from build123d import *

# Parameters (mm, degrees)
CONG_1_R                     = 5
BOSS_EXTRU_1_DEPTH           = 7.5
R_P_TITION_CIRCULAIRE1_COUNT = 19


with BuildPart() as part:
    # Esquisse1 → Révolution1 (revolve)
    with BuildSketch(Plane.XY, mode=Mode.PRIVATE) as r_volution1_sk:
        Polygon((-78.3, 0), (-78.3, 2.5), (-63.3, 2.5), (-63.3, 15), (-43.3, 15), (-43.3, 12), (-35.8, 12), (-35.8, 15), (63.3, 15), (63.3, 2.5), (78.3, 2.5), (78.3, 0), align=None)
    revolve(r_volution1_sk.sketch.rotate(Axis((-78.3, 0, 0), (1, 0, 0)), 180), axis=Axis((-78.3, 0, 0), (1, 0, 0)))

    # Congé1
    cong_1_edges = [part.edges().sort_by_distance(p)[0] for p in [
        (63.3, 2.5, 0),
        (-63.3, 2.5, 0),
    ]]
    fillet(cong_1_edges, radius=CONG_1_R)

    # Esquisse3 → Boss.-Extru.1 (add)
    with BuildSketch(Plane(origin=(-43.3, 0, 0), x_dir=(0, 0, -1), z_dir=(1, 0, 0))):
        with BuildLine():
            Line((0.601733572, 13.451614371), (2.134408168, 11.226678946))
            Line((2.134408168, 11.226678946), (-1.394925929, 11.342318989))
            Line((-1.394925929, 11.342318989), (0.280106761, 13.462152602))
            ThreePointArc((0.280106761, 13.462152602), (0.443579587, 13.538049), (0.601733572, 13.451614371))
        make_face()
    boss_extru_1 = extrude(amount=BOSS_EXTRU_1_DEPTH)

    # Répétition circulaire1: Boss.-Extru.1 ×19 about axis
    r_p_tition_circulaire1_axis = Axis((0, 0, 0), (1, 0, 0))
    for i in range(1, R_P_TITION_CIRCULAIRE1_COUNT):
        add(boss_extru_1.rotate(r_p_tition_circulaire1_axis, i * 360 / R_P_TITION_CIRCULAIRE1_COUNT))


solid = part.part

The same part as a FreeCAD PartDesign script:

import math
import FreeCAD as App
import Part
import Sketcher

V = App.Vector
Q = App.Units.Quantity


def edges_at(feature, points):
    """Names of the edges that pass closest to the given points."""
    edges = feature.Shape.Edges
    near = lambda p: min(range(len(edges)), key=lambda i: edges[i].distToShape(Part.Vertex(*p))[0])
    return sorted({f"Edge{near(p) + 1}" for p in points})

doc = App.newDocument("Part")
body = doc.addObject("PartDesign::Body", "Body")

sketch1 = doc.addObject("Sketcher::SketchObject", "Sketch")
body.addObject(sketch1)
sketch1.AttachmentSupport = (doc.XY_Plane, [""])
sketch1.MapMode = "FlatFace"
sketch1.addGeometry([
    Part.LineSegment(V(-78.3, 2.5, 0), V(-78.3, 0, 0)),
    Part.LineSegment(V(-78.3, 0, 0), V(78.3, 0, 0)),
    Part.LineSegment(V(78.3, 0, 0), V(78.3, 2.5, 0)),
    Part.LineSegment(V(78.3, 2.5, 0), V(63.3, 2.5, 0)),
    Part.LineSegment(V(63.3, 2.5, 0), V(63.3, 15, 0)),
    Part.LineSegment(V(63.3, 15, 0), V(-35.8, 15, 0)),
    Part.LineSegment(V(-35.8, 15, 0), V(-35.8, 12, 0)),
    Part.LineSegment(V(-35.8, 12, 0), V(-43.3, 12, 0)),
    Part.LineSegment(V(-43.3, 12, 0), V(-43.3, 15, 0)),
    Part.LineSegment(V(-43.3, 15, 0), V(-63.3, 15, 0)),
    Part.LineSegment(V(-63.3, 15, 0), V(-63.3, 2.5, 0)),
    Part.LineSegment(V(-63.3, 2.5, 0), V(-78.3, 2.5, 0)),
], False)
sketch1.addConstraint([
    Sketcher.Constraint("Coincident", 0, 2, 1, 1),
    Sketcher.Constraint("Coincident", 1, 2, 2, 1),
    Sketcher.Constraint("Coincident", 2, 2, 3, 1),
    Sketcher.Constraint("Coincident", 3, 2, 4, 1),
    Sketcher.Constraint("Coincident", 4, 2, 5, 1),
    Sketcher.Constraint("Coincident", 5, 2, 6, 1),
    Sketcher.Constraint("Coincident", 6, 2, 7, 1),
    Sketcher.Constraint("Coincident", 7, 2, 8, 1),
    Sketcher.Constraint("Coincident", 8, 2, 9, 1),
    Sketcher.Constraint("Coincident", 9, 2, 10, 1),
    Sketcher.Constraint("Coincident", 10, 2, 11, 1),
    Sketcher.Constraint("Coincident", 11, 2, 0, 1),
    Sketcher.Constraint("Vertical", 0),
    Sketcher.Constraint("Horizontal", 1),
    Sketcher.Constraint("Vertical", 2),
    Sketcher.Constraint("Horizontal", 3),
    Sketcher.Constraint("Vertical", 4),
    Sketcher.Constraint("Horizontal", 5),
    Sketcher.Constraint("Vertical", 6),
    Sketcher.Constraint("Horizontal", 7),
    Sketcher.Constraint("Vertical", 8),
    Sketcher.Constraint("Horizontal", 9),
    Sketcher.Constraint("Vertical", 10),
    Sketcher.Constraint("Horizontal", 11),
    Sketcher.Constraint("Symmetric", 0, 2, 1, 2, -1, 1),
    Sketcher.Constraint("Symmetric", 4, 2, 9, 2, -2),
    Sketcher.Constraint("Horizontal", 3, 2, 10, 2),
    Sketcher.Constraint("DistanceX", 3, 2, 3, 1, Q("15 mm")),
    Sketcher.Constraint("DistanceX", 9, 2, 9, 1, Q("20 mm")),
    Sketcher.Constraint("DistanceY", 6, 2, 6, 1, Q("3 mm")),
    Sketcher.Constraint("DistanceX", 1, 1, 1, 2, Q("156.6 mm")),
    Sketcher.Constraint("DistanceX", 5, 2, 5, 1, Q("99.1 mm")),
    Sketcher.Constraint("DistanceY", 0, 2, 0, 1, Q("2.5 mm")),
    Sketcher.Constraint("DistanceY", 4, 1, 4, 2, Q("12.5 mm")),
])
revolution = doc.addObject("PartDesign::Revolution", "Revolution")
body.addObject(revolution)
revolution.Profile = sketch1
revolution.ReferenceAxis = (sketch1, ["H_Axis"])
revolution.Angle = 360
doc.recompute()

fillet = doc.addObject("PartDesign::Fillet", "Fillet")
body.addObject(fillet)
fillet.Base = (revolution, edges_at(revolution, [(63.3, 2.5, 0), (-63.3, 2.5, 0)]))
fillet.Radius = 5

sketch2 = doc.addObject("Sketcher::SketchObject", "Sketch001")
body.addObject(sketch2)
sketch2.AttachmentSupport = (doc.YZ_Plane, [""])
sketch2.MapMode = "FlatFace"
sketch2.AttachmentOffset = App.Placement(V(0, 0, -43.3), App.Rotation())
sketch2.addGeometry([
    Part.LineSegment(V(11.226679, -2.134408, 0), V(13.451614, -0.601734, 0)),
    Part.ArcOfCircle(Part.Circle(V(13.338156, -0.43703, 0), V(0, 0, 1), 0.2), math.radians(-55.438501), math.radians(51.685205)),
    Part.LineSegment(V(13.462153, -0.280107, 0), V(11.342319, 1.394926, 0)),
    Part.LineSegment(V(11.342319, 1.394926, 0), V(11.226679, -2.134408, 0)),
], False)
sketch2.addConstraint([
    Sketcher.Constraint("Coincident", 0, 2, 1, 1),
    Sketcher.Constraint("Coincident", 1, 2, 2, 1),
    Sketcher.Constraint("Coincident", 2, 2, 3, 1),
    Sketcher.Constraint("Coincident", 3, 2, 0, 1),
    Sketcher.Constraint("Radius", 1, Q("0.2 mm")),
    Sketcher.Constraint("DistanceY", 3, 2, 1, 2, Q("1.854301 mm")),
    Sketcher.Constraint("Distance", 3, Q("3.531228 mm")),
    Sketcher.Constraint("DistanceY", 1, 3, -1, 1, Q("0.43703 mm")),
    Sketcher.Constraint("DistanceX", -1, 1, 2, 2, Q("11.342319 mm")),
    Sketcher.Constraint("DistanceX", -1, 1, 3, 2, Q("11.226679 mm")),
    Sketcher.Constraint("DistanceY", 3, 2, -1, 1, Q("2.134408 mm")),
    Sketcher.Constraint("DistanceX", 1, 3, 0, 2, Q("0.113458 mm")),
    Sketcher.Constraint("Distance", 0, Q("2.701746 mm")),
])
pad1 = doc.addObject("PartDesign::Pad", "Pad")
body.addObject(pad1)
pad1.Profile = sketch2
pad1.Length = 7.5
doc.recompute()

polarpattern = doc.addObject("PartDesign::PolarPattern", "PolarPattern")
body.addObject(polarpattern)
polarpattern.Originals = [pad1]
polarpattern.Axis = (doc.X_Axis, [""])
polarpattern.Angle = 360
polarpattern.Occurrences = 19
body.Tip = polarpattern

doc.recompute()
